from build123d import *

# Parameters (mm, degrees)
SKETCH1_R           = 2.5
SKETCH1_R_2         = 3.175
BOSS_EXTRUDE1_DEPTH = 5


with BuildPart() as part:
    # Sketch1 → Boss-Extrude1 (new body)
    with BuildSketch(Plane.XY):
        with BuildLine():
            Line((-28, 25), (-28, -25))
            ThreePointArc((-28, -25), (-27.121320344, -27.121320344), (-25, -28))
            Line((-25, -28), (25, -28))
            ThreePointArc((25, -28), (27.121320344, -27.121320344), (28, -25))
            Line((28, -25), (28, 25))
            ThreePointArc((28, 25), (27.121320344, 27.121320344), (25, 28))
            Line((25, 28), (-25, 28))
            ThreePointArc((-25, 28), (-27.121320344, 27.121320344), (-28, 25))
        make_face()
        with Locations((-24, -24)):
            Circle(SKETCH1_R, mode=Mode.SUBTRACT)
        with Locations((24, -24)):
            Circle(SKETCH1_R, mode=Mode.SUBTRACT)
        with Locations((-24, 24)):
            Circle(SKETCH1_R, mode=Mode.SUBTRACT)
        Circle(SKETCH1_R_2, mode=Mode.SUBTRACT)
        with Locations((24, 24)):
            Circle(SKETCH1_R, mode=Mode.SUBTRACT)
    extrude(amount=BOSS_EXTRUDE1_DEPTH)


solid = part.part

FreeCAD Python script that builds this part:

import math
import FreeCAD as App
import Part
import Sketcher

V = App.Vector
Q = App.Units.Quantity

doc = App.newDocument("Part")
body = doc.addObject("PartDesign::Body", "Body")

# Sketch on XY plane
sketch1 = body.newObject("Sketcher::SketchObject", "Sketch")
sketch1.AttachmentSupport = (doc.getObject("XY_Plane"), [""])
sketch1.MapMode = "FlatFace"
sketch1.addGeometry(Part.LineSegment(V(-28, 25, 0), V(-28, -25, 0)), False)
sketch1.addGeometry(Part.ArcOfCircle(Part.Circle(V(-25, -25, 0), V(0, 0, 1), 3), math.radians(180), math.radians(270)), False)
sketch1.addGeometry(Part.LineSegment(V(-25, -28, 0), V(25, -28, 0)), False)
sketch1.addGeometry(Part.ArcOfCircle(Part.Circle(V(25, -25, 0), V(0, 0, 1), 3), math.radians(-90), math.radians(0)), False)
sketch1.addGeometry(Part.LineSegment(V(28, -25, 0), V(28, 25, 0)), False)
sketch1.addGeometry(Part.ArcOfCircle(Part.Circle(V(25, 25, 0), V(0, 0, 1), 3), math.radians(0), math.radians(90)), False)
sketch1.addGeometry(Part.LineSegment(V(25, 28, 0), V(-25, 28, 0)), False)
sketch1.addGeometry(Part.ArcOfCircle(Part.Circle(V(-25, 25, 0), V(0, 0, 1), 3), math.radians(90), math.radians(180)), False)
sketch1.addGeometry(Part.Circle(V(-24, -24, 0), V(0, 0, 1), 2.5), False)
sketch1.addGeometry(Part.Circle(V(24, -24, 0), V(0, 0, 1), 2.5), False)
sketch1.addGeometry(Part.Circle(V(-24, 24, 0), V(0, 0, 1), 2.5), False)
sketch1.addGeometry(Part.Circle(V(0, 0, 0), V(0, 0, 1), 3.2), False)
sketch1.addGeometry(Part.Circle(V(24, 24, 0), V(0, 0, 1), 2.5), False)
sketch1.addConstraint(Sketcher.Constraint("Tangent", 0, 2, 1, 1))
sketch1.addConstraint(Sketcher.Constraint("Tangent", 1, 2, 2, 1))
sketch1.addConstraint(Sketcher.Constraint("Tangent", 2, 2, 3, 1))
sketch1.addConstraint(Sketcher.Constraint("Tangent", 3, 2, 4, 1))
sketch1.addConstraint(Sketcher.Constraint("Tangent", 4, 2, 5, 1))
sketch1.addConstraint(Sketcher.Constraint("Tangent", 5, 2, 6, 1))
sketch1.addConstraint(Sketcher.Constraint("Tangent", 6, 2, 7, 1))
sketch1.addConstraint(Sketcher.Constraint("Tangent", 7, 2, 0, 1))
sketch1.addConstraint(Sketcher.Constraint("Vertical", 0))
sketch1.addConstraint(Sketcher.Constraint("Horizontal", 2))
sketch1.addConstraint(Sketcher.Constraint("Vertical", 4))
sketch1.addConstraint(Sketcher.Constraint("Horizontal", 6))
sketch1.addConstraint(Sketcher.Constraint("Coincident", 11, 3, -1, 1))
sketch1.addConstraint(Sketcher.Constraint("Equal", 1, 3))
sketch1.addConstraint(Sketcher.Constraint("Equal", 3, 5))
sketch1.addConstraint(Sketcher.Constraint("Equal", 5, 7))
sketch1.addConstraint(Sketcher.Constraint("Equal", 8, 9))
sketch1.addConstraint(Sketcher.Constraint("Equal", 9, 10))
sketch1.addConstraint(Sketcher.Constraint("Equal", 10, 12))
sketch1.addConstraint(Sketcher.Constraint("Symmetric", 1, 3, 5, 3, -1, 1))
sketch1.addConstraint(Sketcher.Constraint("Symmetric", 9, 3, 10, 3, -1, 1))
sketch1.addConstraint(Sketcher.Constraint("Symmetric", 8, 3, 12, 3, -1, 1))
sketch1.addConstraint(Sketcher.Constraint("Symmetric", 8, 3, 9, 3, -2))
sketch1.addConstraint(Sketcher.Constraint("Equal", 6, 0))
sketch1.addConstraint(Sketcher.Constraint("Diameter", 8, Q("5 mm")))
sketch1.addConstraint(Sketcher.Constraint("Radius", 1, Q("3 mm")))
sketch1.addConstraint(Sketcher.Constraint("Diameter", 11, Q("6.35 mm")))
sketch1.addConstraint(Sketcher.Constraint("DistanceX", 2, 1, 2, 2, Q("50 mm")))
sketch1.addConstraint(Sketcher.Constraint("DistanceX", 8, 3, -1, 1, Q("24 mm")))
sketch1.addConstraint(Sketcher.Constraint("DistanceY", 8, 3, -1, 1, Q("24 mm")))
pad1 = body.newObject("PartDesign::Pad", "Pad")
pad1.Profile = sketch1
pad1.Length = 5

doc.recompute()
